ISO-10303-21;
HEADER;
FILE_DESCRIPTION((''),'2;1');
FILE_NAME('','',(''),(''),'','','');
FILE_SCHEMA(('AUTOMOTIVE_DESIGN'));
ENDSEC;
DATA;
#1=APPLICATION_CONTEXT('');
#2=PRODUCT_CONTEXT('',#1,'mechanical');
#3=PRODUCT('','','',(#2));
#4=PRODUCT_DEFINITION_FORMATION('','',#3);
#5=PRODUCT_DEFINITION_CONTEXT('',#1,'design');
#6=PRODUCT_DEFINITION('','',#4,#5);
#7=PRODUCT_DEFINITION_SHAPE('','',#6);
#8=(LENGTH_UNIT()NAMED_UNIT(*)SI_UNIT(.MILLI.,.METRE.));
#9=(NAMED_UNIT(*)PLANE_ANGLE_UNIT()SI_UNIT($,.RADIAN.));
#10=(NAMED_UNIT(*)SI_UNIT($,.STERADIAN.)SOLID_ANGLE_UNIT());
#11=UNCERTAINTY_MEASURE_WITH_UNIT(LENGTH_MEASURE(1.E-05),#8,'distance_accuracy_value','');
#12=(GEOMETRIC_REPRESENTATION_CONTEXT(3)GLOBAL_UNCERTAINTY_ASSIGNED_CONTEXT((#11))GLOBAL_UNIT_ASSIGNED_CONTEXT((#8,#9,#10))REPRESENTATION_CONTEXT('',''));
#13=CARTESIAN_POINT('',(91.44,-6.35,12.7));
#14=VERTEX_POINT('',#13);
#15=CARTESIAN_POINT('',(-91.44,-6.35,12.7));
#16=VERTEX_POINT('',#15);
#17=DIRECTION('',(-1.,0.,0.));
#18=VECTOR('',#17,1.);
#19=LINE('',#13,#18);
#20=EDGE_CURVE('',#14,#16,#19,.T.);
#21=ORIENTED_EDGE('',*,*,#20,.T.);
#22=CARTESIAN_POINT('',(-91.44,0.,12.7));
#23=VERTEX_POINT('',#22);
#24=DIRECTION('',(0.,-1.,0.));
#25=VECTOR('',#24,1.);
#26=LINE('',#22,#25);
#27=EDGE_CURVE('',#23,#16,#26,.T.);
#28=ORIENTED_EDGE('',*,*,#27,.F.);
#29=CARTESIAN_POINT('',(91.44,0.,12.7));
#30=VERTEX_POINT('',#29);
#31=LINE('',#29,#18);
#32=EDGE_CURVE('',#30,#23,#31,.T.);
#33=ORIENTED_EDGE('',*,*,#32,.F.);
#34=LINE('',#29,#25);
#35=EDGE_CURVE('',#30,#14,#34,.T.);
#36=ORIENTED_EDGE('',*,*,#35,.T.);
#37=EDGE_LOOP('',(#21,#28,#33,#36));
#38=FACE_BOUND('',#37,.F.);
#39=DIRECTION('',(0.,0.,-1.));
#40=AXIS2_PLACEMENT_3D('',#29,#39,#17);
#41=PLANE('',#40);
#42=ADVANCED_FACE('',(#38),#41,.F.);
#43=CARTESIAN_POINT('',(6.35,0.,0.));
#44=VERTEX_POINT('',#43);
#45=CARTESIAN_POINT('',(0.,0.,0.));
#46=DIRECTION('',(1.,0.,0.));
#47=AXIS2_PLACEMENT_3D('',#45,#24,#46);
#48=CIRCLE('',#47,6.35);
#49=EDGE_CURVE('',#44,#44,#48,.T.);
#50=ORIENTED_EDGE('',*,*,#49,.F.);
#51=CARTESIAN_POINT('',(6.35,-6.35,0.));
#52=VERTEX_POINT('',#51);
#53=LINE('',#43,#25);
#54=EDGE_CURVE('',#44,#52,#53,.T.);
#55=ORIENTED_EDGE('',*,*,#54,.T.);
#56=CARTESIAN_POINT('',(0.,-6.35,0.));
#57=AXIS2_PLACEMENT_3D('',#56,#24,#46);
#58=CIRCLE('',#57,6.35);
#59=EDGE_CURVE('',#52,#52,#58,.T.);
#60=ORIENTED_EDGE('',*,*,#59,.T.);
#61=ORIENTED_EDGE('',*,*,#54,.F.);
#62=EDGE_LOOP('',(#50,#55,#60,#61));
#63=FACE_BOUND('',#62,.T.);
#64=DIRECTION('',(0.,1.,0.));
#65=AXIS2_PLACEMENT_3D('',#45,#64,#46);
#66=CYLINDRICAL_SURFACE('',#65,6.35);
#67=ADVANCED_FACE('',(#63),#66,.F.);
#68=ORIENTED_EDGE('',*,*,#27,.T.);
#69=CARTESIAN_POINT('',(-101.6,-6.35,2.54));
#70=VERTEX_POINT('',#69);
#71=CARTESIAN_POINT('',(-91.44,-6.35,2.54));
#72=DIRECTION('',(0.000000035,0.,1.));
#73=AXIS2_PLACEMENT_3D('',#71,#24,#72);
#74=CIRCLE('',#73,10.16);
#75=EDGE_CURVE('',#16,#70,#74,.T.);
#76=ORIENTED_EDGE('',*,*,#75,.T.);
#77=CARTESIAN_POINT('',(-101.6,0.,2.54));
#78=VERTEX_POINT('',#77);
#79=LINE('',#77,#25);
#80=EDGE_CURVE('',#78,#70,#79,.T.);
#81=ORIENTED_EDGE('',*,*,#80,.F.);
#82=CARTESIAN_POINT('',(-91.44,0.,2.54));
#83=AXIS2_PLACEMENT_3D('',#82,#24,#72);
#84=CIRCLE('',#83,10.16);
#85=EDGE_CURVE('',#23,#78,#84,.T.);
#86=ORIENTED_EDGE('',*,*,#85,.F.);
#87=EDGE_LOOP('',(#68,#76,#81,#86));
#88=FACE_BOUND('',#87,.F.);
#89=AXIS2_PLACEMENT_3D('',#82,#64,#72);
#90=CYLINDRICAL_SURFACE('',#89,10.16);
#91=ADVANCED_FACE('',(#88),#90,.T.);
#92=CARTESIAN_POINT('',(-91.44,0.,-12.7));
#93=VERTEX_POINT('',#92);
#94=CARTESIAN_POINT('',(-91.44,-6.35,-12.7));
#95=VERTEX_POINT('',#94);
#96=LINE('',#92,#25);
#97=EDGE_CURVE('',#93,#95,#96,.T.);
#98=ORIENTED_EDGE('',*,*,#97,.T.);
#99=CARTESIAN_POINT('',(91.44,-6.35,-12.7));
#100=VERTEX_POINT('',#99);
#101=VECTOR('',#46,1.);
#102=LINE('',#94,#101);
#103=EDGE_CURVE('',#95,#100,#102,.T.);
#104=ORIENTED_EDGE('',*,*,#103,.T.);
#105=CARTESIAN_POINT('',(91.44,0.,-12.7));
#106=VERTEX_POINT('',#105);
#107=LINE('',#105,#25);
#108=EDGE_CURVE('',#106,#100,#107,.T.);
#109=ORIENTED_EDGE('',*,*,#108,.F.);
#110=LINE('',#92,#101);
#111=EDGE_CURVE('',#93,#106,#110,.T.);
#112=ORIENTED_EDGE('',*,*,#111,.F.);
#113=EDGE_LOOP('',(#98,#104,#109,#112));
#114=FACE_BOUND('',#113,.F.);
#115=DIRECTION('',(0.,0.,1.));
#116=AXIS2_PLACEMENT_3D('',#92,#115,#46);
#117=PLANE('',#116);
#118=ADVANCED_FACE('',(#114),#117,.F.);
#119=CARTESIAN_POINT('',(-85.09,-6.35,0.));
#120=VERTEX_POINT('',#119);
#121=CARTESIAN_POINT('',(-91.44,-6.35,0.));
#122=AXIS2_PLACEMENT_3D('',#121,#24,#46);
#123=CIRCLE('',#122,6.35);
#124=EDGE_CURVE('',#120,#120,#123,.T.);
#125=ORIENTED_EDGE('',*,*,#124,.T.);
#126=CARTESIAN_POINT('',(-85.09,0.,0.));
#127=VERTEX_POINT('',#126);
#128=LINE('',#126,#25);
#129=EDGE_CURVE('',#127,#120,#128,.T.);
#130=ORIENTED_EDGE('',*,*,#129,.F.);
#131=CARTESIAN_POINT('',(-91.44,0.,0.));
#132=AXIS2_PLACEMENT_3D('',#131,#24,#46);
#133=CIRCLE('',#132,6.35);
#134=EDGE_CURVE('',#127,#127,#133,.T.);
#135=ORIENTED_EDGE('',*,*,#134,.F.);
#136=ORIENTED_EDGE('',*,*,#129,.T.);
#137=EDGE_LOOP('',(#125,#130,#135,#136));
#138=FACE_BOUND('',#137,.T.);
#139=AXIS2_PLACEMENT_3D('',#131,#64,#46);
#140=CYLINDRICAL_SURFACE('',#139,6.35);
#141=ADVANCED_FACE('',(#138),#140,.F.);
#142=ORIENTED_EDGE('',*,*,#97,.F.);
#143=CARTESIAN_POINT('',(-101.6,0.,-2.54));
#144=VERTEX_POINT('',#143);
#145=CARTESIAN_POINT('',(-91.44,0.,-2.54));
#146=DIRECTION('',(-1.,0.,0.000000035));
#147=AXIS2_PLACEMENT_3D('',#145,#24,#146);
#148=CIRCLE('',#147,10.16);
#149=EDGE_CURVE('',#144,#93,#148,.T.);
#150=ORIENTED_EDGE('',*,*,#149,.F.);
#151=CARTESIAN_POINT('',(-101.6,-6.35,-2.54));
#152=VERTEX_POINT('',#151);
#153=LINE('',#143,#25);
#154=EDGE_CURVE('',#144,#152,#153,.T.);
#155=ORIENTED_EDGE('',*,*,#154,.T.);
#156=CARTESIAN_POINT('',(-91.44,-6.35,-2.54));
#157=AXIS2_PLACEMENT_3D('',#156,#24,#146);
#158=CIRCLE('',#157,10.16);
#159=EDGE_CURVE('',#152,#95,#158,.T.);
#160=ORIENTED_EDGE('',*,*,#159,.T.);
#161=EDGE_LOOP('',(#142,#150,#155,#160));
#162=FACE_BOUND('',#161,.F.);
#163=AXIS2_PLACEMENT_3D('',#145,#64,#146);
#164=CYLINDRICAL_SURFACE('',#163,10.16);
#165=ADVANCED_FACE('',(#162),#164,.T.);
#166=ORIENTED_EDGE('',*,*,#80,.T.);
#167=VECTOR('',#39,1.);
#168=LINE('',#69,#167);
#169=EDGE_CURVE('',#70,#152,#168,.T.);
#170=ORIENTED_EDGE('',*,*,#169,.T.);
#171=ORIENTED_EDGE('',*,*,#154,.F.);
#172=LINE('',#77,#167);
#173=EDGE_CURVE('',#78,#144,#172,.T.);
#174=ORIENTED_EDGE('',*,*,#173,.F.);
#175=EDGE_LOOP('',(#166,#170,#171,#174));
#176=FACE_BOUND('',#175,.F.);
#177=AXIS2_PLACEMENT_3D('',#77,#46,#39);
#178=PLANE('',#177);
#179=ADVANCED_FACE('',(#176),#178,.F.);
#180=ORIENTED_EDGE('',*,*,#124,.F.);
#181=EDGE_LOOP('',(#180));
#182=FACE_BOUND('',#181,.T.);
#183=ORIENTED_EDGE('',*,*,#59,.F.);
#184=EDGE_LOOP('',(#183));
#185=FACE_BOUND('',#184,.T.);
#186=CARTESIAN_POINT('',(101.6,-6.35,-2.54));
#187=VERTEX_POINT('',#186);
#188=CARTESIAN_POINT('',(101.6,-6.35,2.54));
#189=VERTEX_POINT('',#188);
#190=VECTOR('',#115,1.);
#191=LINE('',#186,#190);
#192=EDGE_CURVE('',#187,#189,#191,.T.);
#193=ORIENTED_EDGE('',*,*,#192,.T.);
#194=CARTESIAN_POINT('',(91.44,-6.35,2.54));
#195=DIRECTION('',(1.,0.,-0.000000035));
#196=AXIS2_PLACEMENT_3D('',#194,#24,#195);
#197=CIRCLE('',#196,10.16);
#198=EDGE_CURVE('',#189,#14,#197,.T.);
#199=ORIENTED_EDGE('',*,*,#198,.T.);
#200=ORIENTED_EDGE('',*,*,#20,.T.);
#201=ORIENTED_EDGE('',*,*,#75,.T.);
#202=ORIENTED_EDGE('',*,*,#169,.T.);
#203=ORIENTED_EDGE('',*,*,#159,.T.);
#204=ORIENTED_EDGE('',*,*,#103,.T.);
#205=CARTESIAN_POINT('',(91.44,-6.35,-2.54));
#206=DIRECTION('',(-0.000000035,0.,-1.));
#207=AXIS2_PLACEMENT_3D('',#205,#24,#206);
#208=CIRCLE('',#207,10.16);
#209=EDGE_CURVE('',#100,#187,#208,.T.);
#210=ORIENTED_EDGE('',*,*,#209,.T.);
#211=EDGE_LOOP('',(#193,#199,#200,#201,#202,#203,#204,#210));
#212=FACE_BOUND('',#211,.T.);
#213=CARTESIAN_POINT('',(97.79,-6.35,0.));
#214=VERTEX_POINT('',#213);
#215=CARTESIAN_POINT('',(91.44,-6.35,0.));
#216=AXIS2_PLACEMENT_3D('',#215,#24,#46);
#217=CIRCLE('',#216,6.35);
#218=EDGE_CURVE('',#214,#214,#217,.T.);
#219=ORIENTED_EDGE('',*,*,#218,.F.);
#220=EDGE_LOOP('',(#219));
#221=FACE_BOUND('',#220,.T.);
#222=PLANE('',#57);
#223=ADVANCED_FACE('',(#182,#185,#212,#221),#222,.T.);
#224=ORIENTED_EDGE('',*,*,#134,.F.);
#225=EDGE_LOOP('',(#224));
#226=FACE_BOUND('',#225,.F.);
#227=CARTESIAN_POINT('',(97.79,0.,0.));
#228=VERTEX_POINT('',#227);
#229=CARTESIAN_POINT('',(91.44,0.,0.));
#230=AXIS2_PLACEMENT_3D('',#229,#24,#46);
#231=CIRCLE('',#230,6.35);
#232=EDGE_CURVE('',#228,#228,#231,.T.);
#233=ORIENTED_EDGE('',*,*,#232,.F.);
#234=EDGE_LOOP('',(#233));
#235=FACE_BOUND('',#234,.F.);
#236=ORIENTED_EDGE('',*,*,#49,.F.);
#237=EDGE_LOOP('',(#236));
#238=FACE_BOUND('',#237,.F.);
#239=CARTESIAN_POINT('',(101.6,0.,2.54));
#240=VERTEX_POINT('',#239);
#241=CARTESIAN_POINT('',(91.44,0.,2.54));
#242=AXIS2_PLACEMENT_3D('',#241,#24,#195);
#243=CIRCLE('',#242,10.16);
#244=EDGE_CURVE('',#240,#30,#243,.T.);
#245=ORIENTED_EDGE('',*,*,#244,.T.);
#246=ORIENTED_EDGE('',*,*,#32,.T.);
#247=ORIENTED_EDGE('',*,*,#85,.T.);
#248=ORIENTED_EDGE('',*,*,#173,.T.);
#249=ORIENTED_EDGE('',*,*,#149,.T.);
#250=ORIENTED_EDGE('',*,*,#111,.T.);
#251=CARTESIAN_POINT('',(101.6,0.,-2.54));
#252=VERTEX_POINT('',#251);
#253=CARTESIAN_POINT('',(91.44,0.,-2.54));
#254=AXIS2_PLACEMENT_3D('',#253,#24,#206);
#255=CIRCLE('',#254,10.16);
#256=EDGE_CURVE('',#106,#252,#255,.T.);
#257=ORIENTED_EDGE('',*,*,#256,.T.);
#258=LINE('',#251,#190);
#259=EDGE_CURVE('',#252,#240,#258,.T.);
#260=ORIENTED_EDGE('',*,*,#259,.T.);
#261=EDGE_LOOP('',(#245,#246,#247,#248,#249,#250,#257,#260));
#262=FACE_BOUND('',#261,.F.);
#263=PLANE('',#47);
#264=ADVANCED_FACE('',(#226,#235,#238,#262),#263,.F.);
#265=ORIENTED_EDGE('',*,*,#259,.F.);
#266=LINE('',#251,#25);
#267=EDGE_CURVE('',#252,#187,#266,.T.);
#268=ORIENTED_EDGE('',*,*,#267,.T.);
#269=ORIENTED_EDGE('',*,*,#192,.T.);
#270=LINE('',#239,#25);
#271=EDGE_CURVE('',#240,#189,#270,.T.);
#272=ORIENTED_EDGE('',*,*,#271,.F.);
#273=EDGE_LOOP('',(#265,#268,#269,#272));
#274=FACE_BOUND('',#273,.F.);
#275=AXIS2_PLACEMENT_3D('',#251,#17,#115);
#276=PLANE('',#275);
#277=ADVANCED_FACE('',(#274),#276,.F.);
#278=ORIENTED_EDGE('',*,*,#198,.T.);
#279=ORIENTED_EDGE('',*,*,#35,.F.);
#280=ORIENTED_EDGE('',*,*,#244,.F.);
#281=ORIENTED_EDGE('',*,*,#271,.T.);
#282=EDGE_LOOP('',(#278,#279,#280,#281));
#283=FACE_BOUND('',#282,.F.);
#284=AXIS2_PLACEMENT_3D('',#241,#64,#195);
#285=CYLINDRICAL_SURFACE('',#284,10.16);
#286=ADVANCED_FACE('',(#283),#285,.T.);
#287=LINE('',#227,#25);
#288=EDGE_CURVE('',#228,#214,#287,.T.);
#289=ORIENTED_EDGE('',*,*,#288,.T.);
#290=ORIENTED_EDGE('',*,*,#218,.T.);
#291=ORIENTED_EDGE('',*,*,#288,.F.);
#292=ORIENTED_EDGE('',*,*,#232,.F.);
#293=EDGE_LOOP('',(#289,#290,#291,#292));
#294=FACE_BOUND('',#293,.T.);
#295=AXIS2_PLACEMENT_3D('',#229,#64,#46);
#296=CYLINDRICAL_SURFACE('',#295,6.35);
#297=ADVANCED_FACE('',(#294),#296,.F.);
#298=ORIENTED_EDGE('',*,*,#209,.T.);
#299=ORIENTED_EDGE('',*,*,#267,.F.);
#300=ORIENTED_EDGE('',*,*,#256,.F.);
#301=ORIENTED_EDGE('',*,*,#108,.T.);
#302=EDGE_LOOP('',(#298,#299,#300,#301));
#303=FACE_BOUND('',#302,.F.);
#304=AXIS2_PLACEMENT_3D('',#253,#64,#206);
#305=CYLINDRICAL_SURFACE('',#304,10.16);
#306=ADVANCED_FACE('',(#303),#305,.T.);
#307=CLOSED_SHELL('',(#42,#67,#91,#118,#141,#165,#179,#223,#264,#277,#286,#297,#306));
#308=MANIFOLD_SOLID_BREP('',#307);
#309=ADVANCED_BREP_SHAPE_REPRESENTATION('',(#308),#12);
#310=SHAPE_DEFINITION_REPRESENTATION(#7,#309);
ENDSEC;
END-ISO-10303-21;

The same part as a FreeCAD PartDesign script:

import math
import FreeCAD as App
import Part
import Sketcher

V = App.Vector
Q = App.Units.Quantity

doc = App.newDocument("Part")
body = doc.addObject("PartDesign::Body", "Body")

sketch1 = body.newObject("Sketcher::SketchObject", "Sketch")
sketch1.AttachmentSupport = (doc.getObject("XZ_Plane"), [""])
sketch1.MapMode = "FlatFace"
sketch1.addGeometry(Part.ArcOfCircle(Part.Circle(V(91, 3, 0), V(0, 0, 1), 10), math.radians(0), math.radians(90)), False)
sketch1.addGeometry(Part.LineSegment(V(91, 13, 0), V(-91, 13, 0)), False)
sketch1.addGeometry(Part.ArcOfCircle(Part.Circle(V(-91, 3, 0), V(0, 0, 1), 10), math.radians(90), math.radians(180)), False)
sketch1.addGeometry(Part.LineSegment(V(-102, 3, 0), V(-102, -3, 0)), False)
sketch1.addGeometry(Part.ArcOfCircle(Part.Circle(V(-91, -3, 0), V(0, 0, 1), 10), math.radians(180), math.radians(270)), False)
sketch1.addGeometry(Part.LineSegment(V(-91, -13, 0), V(91, -13, 0)), False)
sketch1.addGeometry(Part.ArcOfCircle(Part.Circle(V(91, -3, 0), V(0, 0, 1), 10), math.radians(-90), math.radians(0)), False)
sketch1.addGeometry(Part.LineSegment(V(102, -3, 0), V(102, 3, 0)), False)
sketch1.addGeometry(Part.Circle(V(-91, 0, 0), V(0, 0, 1), 6), False)
sketch1.addGeometry(Part.Circle(V(0, 0, 0), V(0, 0, 1), 6), False)
sketch1.addGeometry(Part.Circle(V(91, 0, 0), V(0, 0, 1), 6), False)
sketch1.addConstraint(Sketcher.Constraint("Tangent", 0, 2, 1, 1))
sketch1.addConstraint(Sketcher.Constraint("Tangent", 1, 2, 2, 1))
sketch1.addConstraint(Sketcher.Constraint("Tangent", 2, 2, 3, 1))
sketch1.addConstraint(Sketcher.Constraint("Tangent", 3, 2, 4, 1))
sketch1.addConstraint(Sketcher.Constraint("Tangent", 4, 2, 5, 1))
sketch1.addConstraint(Sketcher.Constraint("Tangent", 5, 2, 6, 1))
sketch1.addConstraint(Sketcher.Constraint("Tangent", 6, 2, 7, 1))
sketch1.addConstraint(Sketcher.Constraint("Tangent", 7, 2, 0, 1))
sketch1.addConstraint(Sketcher.Constraint("Horizontal", 1))
sketch1.addConstraint(Sketcher.Constraint("Vertical", 3))
sketch1.addConstraint(Sketcher.Constraint("Horizontal", 5))
sketch1.addConstraint(Sketcher.Constraint("Vertical", 7))
sketch1.addConstraint(Sketcher.Constraint("Coincident", 9, 3, -1, 1))
sketch1.addConstraint(Sketcher.Constraint("Equal", 0, 2))
sketch1.addConstraint(Sketcher.Constraint("Equal", 2, 4))
sketch1.addConstraint(Sketcher.Constraint("Equal", 4, 6))
sketch1.addConstraint(Sketcher.Constraint("Equal", 8, 9))
sketch1.addConstraint(Sketcher.Constraint("Equal", 9, 10))
sketch1.addConstraint(Sketcher.Constraint("Symmetric", 0, 3, 4, 3, -1, 1))
sketch1.addConstraint(Sketcher.Constraint("Symmetric", 8, 3, 10, 3, -1, 1))
sketch1.addConstraint(Sketcher.Constraint("PointOnObject", 8, 3, -1))
sketch1.addConstraint(Sketcher.Constraint("Vertical", 4, 3, 8, 3))
sketch1.addConstraint(Sketcher.Constraint("Diameter", 8, Q("0.5 in")))
sketch1.addConstraint(Sketcher.Constraint("Radius", 0, Q("0.4 in")))
sketch1.addConstraint(Sketcher.Constraint("DistanceX", 1, 2, 1, 1, Q("7.2 in")))
sketch1.addConstraint(Sketcher.Constraint("DistanceY", 3, 2, 3, 1, Q("0.2 in")))
pad1 = body.newObject("PartDesign::Pad", "Pad")
pad1.Profile = sketch1
pad1.Length = Q("0.25 in")

doc.recompute()
